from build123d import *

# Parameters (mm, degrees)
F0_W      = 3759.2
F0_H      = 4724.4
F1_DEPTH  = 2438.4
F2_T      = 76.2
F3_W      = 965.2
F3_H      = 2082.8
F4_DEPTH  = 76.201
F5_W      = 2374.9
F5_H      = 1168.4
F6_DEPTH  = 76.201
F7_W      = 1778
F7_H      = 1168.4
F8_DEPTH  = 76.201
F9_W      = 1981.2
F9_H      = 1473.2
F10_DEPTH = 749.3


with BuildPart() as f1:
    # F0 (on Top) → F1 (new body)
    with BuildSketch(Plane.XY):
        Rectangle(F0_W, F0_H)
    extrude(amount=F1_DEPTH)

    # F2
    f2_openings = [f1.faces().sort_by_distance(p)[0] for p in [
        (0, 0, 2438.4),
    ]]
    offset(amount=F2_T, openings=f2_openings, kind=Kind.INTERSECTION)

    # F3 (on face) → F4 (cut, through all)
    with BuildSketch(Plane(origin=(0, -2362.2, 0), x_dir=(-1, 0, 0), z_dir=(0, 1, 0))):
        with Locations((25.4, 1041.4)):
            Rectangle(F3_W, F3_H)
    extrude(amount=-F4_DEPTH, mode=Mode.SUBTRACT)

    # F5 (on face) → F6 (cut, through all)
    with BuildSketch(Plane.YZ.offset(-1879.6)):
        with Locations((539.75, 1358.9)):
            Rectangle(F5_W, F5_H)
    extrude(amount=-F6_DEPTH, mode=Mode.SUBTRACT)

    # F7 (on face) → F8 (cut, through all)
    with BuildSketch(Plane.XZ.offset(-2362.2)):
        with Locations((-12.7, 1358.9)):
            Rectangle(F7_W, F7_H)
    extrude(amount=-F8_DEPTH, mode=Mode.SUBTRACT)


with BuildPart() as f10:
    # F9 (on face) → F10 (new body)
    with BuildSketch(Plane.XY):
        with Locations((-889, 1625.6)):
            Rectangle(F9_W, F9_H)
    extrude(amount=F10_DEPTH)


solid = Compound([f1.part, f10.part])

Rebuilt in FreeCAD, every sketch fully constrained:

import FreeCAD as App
import Part
import Sketcher

V = App.Vector
Q = App.Units.Quantity


def faces_at(feature, points):
    """Names of the faces that lie closest to the given points."""
    faces = feature.Shape.Faces
    near = lambda p: min(range(len(faces)), key=lambda i: faces[i].distToShape(Part.Vertex(*p))[0])
    return sorted({f"Face{near(p) + 1}" for p in points})


def add_polygon(sketch, points):
    """Adds a closed chain of lines whose ends are joined by coincident constraints."""
    first, n = sketch.GeometryCount, len(points)
    for a, b in zip(points, points[1:] + points[:1]):
        sketch.addGeometry(Part.LineSegment(App.Vector(*a, 0), App.Vector(*b, 0)), False)
    for i in range(n):
        sketch.addConstraint(Sketcher.Constraint("Coincident", first + i, 2, first + (i + 1) % n, 1))

doc = App.newDocument("Part")
body = doc.addObject("PartDesign::Body", "Body")

# Sketch on XY plane
sketch1 = doc.addObject("Sketcher::SketchObject", "Sketch")
body.addObject(sketch1)
sketch1.AttachmentSupport = (doc.XY_Plane, [""])
sketch1.MapMode = "FlatFace"
add_polygon(sketch1, [(-1880, 2362), (-1880, -2362), (1880, -2362), (1880, 2362)])  # lines 0-3
sketch1.addConstraint([
    Sketcher.Constraint("Vertical", 0),
    Sketcher.Constraint("Horizontal", 1),
    Sketcher.Constraint("Vertical", 2),
    Sketcher.Constraint("Horizontal", 3),
    Sketcher.Constraint("Symmetric", 0, 2, 2, 2, -1, 1),
    Sketcher.Constraint("DistanceX", 1, 1, 1, 2, Q("148 in")),
    Sketcher.Constraint("DistanceY", 0, 2, 0, 1, Q("186 in")),
])
pad1 = doc.addObject("PartDesign::Pad", "Pad")
body.addObject(pad1)
pad1.Profile = sketch1
pad1.Length = Q("96 in")
doc.recompute()

thickness = doc.addObject("PartDesign::Thickness", "Thickness")
body.addObject(thickness)
thickness.Base = (pad1, faces_at(pad1, [(0, 0, 2438.4)]))
thickness.Value = Q("3 in")
thickness.Reversed = False
thickness.Join = "Intersection"

# Sketch on XZ plane
sketch2 = doc.addObject("Sketcher::SketchObject", "Sketch001")
body.addObject(sketch2)
sketch2.AttachmentSupport = (doc.XZ_Plane, [""])
sketch2.MapMode = "FlatFace"
sketch2.AttachmentOffset = App.Placement(V(0, 0, 93 * 25.4), App.Rotation())
add_polygon(sketch2, [(457, 2083), (457, 0), (-508, 0), (-508, 2083)])  # lines 0-3
sketch2.addConstraint([
    Sketcher.Constraint("Vertical", 0),
    Sketcher.Constraint("Horizontal", 1),
    Sketcher.Constraint("Vertical", 2),
    Sketcher.Constraint("Horizontal", 3),
    Sketcher.Constraint("PointOnObject", 0, 2, -1),
    Sketcher.Constraint("DistanceX", 1, 2, 1, 1, Q("38 in")),
    Sketcher.Constraint("DistanceY", 0, 2, 0, 1, Q("82 in")),
    Sketcher.Constraint("DistanceX", -1, 1, 0, 2, Q("18 in")),
])
pocket1 = doc.addObject("PartDesign::Pocket", "Pocket")
body.addObject(pocket1)
pocket1.Profile = sketch2
pocket1.Type = "ThroughAll"
pocket1.Reversed = True

# Sketch on YZ plane
sketch3 = doc.addObject("Sketcher::SketchObject", "Sketch002")
body.addObject(sketch3)
sketch3.AttachmentSupport = (doc.YZ_Plane, [""])
sketch3.MapMode = "FlatFace"
sketch3.AttachmentOffset = App.Placement(V(0, 0, -74 * 25.4), App.Rotation())
add_polygon(sketch3, [(-648, 1943), (-648, 775), (1727, 775), (1727, 1943)])  # lines 0-3
sketch3.addConstraint([
    Sketcher.Constraint("Vertical", 0),
    Sketcher.Constraint("Horizontal", 1),
    Sketcher.Constraint("Vertical", 2),
    Sketcher.Constraint("Horizontal", 3),
    Sketcher.Constraint("DistanceY", 0, 2, 0, 1, Q("46 in")),
    Sketcher.Constraint("DistanceX", 1, 1, 1, 2, Q("93.5 in")),
    Sketcher.Constraint("DistanceX", -1, 1, 1, 2, Q("68 in")),
    Sketcher.Constraint("DistanceY", -1, 1, 0, 2, Q("30.5 in")),
])
pocket2 = doc.addObject("PartDesign::Pocket", "Pocket001")
body.addObject(pocket2)
pocket2.Profile = sketch3
pocket2.Type = "ThroughAll"

# Sketch on XZ plane
sketch4 = doc.addObject("Sketcher::SketchObject", "Sketch003")
body.addObject(sketch4)
sketch4.AttachmentSupport = (doc.XZ_Plane, [""])
sketch4.MapMode = "FlatFace"
sketch4.AttachmentOffset = App.Placement(V(0, 0, -93 * 25.4), App.Rotation())
add_polygon(sketch4, [(-902, 1943), (-902, 775), (876, 775), (876, 1943)])  # lines 0-3
sketch4.addConstraint([
    Sketcher.Constraint("Vertical", 0),
    Sketcher.Constraint("Horizontal", 1),
    Sketcher.Constraint("Vertical", 2),
    Sketcher.Constraint("Horizontal", 3),
    Sketcher.Constraint("DistanceX", 1, 1, 1, 2, Q("70 in")),
    Sketcher.Constraint("DistanceY", 0, 2, 0, 1, Q("46 in")),
    Sketcher.Constraint("DistanceX", 0, 2, -1, 1, Q("35.5 in")),
    Sketcher.Constraint("DistanceY", -1, 1, 0, 2, Q("30.5 in")),
])
pocket3 = doc.addObject("PartDesign::Pocket", "Pocket002")
body.addObject(pocket3)
pocket3.Profile = sketch4
pocket3.Type = "ThroughAll"
body2 = doc.addObject("PartDesign::Body", "Body001")

# Sketch on XY plane
sketch5 = doc.addObject("Sketcher::SketchObject", "Sketch004")
body2.addObject(sketch5)
sketch5.AttachmentSupport = (doc.getObject("XY_Plane001"), [""])
sketch5.MapMode = "FlatFace"
add_polygon(sketch5, [(-1880, 2362), (-1880, 889), (102, 889), (102, 2362)])  # lines 0-3
sketch5.addConstraint([
    Sketcher.Constraint("Vertical", 0),
    Sketcher.Constraint("Horizontal", 1),
    Sketcher.Constraint("Vertical", 2),
    Sketcher.Constraint("Horizontal", 3),
    Sketcher.Constraint("DistanceX", 1, 1, 1, 2, Q("78 in")),
    Sketcher.Constraint("DistanceY", 0, 2, 0, 1, Q("58 in")),
    Sketcher.Constraint("DistanceX", 0, 2, -1, 1, Q("74 in")),
    Sketcher.Constraint("DistanceY", -1, 1, 0, 2, Q("35 in")),
])
pad2 = doc.addObject("PartDesign::Pad", "Pad001")
body2.addObject(pad2)
pad2.Profile = sketch5
pad2.Length = Q("29.5 in")

doc.recompute()
